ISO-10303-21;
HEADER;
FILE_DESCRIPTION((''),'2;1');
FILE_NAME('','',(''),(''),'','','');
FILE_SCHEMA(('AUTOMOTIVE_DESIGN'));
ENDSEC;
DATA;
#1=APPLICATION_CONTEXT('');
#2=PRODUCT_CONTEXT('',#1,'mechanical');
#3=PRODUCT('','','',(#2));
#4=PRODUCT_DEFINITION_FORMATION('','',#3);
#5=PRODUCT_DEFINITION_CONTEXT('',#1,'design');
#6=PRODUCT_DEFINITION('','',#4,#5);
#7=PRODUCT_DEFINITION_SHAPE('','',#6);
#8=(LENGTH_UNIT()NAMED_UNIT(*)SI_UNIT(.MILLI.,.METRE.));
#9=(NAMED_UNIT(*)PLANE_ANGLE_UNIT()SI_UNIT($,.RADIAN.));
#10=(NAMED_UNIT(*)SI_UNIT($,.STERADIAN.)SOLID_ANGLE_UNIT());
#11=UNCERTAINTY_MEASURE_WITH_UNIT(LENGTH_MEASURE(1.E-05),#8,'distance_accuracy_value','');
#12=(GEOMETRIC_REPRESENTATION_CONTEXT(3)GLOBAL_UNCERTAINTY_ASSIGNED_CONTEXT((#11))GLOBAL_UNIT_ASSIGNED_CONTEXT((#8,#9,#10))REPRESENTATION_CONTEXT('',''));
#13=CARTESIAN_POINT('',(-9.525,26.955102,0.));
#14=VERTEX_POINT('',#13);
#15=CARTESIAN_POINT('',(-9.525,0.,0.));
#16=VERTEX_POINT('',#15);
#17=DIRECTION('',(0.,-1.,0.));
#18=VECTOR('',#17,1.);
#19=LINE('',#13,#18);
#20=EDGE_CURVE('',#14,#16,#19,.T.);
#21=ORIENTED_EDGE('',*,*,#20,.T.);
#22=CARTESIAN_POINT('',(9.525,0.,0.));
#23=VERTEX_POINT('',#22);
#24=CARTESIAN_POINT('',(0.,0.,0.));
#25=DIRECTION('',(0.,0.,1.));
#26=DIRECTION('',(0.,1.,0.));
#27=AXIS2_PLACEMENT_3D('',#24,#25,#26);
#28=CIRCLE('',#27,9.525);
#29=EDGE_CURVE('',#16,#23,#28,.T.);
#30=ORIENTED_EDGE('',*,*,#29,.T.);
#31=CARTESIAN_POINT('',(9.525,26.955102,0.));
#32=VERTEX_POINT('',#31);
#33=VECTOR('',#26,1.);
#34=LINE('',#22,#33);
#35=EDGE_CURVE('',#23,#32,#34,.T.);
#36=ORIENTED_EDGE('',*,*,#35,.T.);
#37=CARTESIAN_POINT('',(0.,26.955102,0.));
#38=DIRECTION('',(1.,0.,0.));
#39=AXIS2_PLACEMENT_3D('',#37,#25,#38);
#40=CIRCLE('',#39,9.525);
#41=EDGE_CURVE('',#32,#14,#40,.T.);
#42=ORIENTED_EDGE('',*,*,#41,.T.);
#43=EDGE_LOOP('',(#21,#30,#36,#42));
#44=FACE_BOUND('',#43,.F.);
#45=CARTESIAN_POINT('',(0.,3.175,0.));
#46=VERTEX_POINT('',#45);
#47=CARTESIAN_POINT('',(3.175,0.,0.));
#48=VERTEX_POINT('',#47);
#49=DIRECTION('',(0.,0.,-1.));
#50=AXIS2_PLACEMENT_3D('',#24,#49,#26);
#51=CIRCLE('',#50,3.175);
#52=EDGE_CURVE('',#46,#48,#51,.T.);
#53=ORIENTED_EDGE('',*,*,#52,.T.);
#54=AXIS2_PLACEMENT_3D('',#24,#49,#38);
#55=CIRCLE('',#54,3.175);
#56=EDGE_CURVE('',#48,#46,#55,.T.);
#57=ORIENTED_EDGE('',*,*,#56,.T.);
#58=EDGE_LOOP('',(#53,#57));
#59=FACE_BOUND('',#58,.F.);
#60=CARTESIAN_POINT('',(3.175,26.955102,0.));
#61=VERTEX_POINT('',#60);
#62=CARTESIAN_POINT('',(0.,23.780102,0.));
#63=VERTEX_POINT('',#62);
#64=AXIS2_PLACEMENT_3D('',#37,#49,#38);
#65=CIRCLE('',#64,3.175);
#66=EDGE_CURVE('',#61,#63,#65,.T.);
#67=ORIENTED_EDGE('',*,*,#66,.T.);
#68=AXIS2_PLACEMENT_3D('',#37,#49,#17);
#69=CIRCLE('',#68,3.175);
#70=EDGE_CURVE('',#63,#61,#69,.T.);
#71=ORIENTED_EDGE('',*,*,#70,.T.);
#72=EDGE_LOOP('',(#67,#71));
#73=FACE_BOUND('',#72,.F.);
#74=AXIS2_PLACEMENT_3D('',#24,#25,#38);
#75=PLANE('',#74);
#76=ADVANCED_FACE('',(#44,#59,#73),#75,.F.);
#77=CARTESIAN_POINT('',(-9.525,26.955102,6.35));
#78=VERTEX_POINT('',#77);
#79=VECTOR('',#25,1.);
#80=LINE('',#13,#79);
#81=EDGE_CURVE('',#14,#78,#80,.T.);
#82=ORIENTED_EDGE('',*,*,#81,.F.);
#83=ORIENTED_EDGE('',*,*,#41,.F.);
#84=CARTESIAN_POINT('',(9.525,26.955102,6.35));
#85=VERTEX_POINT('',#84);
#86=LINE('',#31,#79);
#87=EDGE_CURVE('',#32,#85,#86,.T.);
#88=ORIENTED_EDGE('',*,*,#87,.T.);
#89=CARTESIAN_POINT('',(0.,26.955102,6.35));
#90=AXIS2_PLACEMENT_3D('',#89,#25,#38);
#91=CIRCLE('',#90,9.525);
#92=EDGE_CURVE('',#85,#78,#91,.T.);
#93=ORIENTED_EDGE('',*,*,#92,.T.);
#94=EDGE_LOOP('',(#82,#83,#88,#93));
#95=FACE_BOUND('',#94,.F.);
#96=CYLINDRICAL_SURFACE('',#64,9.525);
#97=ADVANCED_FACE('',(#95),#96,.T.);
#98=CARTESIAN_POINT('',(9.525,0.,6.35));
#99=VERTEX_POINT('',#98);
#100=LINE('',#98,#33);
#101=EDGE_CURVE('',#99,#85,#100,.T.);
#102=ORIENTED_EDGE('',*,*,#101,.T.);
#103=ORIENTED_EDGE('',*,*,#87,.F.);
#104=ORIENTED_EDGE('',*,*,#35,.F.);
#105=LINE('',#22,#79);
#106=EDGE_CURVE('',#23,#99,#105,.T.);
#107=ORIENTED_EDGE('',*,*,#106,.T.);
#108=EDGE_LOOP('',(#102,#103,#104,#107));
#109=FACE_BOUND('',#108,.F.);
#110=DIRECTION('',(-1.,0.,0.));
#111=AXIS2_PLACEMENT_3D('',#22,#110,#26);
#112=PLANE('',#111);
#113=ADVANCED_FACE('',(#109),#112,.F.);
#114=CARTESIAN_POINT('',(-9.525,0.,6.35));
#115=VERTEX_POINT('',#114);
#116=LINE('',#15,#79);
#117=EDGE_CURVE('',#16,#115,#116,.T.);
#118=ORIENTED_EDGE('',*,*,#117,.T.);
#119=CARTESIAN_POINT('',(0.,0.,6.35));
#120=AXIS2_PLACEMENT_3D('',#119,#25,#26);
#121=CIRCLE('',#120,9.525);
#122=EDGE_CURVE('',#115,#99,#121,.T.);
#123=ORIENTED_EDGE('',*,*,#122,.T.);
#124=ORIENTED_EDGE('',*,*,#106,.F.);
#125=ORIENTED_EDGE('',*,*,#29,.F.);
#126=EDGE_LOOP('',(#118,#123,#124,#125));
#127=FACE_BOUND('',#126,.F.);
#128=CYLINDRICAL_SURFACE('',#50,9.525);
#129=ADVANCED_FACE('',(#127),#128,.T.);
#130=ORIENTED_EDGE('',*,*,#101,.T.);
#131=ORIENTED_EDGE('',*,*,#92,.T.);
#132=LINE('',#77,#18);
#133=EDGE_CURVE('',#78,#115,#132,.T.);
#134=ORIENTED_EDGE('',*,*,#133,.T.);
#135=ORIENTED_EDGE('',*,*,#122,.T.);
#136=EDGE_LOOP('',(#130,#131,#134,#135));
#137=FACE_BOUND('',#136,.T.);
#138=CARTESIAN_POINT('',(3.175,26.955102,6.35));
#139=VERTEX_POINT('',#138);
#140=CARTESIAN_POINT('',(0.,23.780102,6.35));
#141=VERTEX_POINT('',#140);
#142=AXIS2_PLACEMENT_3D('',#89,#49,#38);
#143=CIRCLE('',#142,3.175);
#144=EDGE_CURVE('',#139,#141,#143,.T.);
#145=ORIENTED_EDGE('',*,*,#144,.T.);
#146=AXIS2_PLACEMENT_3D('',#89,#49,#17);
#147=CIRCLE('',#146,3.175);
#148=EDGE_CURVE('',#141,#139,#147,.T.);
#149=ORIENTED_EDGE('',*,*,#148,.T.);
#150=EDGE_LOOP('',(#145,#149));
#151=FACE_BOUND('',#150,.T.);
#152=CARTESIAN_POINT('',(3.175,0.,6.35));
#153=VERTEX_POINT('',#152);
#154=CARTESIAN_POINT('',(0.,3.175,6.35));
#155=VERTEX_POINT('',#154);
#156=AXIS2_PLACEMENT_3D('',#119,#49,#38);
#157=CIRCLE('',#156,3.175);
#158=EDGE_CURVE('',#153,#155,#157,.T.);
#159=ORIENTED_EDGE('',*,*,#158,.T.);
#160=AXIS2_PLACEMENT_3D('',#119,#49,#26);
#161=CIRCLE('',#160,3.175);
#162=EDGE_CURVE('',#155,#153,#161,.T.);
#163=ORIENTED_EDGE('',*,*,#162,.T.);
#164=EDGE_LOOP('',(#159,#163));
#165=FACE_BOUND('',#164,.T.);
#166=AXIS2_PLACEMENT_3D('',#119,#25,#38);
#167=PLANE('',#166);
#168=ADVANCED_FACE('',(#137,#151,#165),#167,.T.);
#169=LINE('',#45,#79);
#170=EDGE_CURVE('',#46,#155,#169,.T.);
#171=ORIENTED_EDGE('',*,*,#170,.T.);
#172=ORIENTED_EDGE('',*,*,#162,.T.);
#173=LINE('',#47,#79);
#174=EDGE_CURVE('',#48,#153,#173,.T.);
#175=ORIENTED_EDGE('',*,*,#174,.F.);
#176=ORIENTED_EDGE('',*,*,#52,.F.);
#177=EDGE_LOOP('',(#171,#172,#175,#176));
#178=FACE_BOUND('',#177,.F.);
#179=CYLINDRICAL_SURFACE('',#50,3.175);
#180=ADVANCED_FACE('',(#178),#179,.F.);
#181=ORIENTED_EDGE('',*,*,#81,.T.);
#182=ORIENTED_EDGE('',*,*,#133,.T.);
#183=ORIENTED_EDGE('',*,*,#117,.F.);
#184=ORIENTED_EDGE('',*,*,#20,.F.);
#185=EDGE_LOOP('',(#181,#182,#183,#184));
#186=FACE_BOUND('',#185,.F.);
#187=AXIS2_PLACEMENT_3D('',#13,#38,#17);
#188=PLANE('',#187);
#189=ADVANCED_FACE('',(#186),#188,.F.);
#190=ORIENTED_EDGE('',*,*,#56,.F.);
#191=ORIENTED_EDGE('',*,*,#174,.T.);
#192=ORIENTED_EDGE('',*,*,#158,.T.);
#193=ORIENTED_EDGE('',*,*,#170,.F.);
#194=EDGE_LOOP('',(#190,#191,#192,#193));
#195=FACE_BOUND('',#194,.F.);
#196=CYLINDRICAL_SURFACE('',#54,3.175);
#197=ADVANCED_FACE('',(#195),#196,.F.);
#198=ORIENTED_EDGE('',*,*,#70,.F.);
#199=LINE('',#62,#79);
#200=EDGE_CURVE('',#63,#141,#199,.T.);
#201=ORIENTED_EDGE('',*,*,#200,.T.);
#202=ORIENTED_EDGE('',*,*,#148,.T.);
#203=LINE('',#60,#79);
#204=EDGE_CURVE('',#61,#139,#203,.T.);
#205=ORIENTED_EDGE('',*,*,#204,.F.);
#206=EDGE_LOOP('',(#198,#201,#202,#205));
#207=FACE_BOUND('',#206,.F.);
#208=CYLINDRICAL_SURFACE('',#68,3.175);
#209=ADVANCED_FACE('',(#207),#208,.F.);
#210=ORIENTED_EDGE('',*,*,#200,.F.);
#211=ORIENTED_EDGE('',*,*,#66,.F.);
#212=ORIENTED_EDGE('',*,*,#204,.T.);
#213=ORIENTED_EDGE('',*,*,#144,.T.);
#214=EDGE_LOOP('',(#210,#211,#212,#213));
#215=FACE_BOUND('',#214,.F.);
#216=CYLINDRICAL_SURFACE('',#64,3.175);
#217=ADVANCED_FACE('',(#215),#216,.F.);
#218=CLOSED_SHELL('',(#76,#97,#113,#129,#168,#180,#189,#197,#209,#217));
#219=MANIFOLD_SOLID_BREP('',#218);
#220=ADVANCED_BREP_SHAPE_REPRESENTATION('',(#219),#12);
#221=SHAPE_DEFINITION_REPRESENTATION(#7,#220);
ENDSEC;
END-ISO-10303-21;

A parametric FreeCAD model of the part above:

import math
import FreeCAD as App
import Part
import Sketcher
Q = App.Units.Quantity

doc = App.newDocument("Part")
params = doc.addObject("Spreadsheet::Sheet", "Params")
for row, (alias, value) in enumerate([
    ("sketch1_radius", "0.375 in"),
    ("sketch1_radius2", "0.125 in"),
    ("pad1_length", "0.25 in"),
], start=1):
    params.set(f"A{row}", alias)
    params.set(f"B{row}", "=" + value)
    params.setAlias(f"B{row}", alias)

body = doc.addObject("PartDesign::Body", "Body")

# Sketch on XY plane
sketch1 = body.newObject("Sketcher::SketchObject", "Sketch")
sketch1.AttachmentSupport = (doc.getObject("XY_Plane"), [""])
sketch1.MapMode = "FlatFace"
sketch1.addGeometry([
    Part.LineSegment(App.Vector(9.5, 0, 0), App.Vector(9.5, 27, 0)),  # 0
    Part.ArcOfCircle(Part.Circle(App.Vector(0, 27, 0), App.Vector(0, 0, 1), 9.5), math.radians(0), math.radians(180)),  # 1
    Part.LineSegment(App.Vector(-9.5, 27, 0), App.Vector(-9.5, 0, 0)),  # 2
    Part.ArcOfCircle(Part.Circle(App.Vector(0, 0, 0), App.Vector(0, 0, 1), 9.5), math.radians(180), math.radians(360)),  # 3
    Part.ArcOfCircle(Part.Circle(App.Vector(0, 0, 0), App.Vector(0, 0, 1), 3.2), math.radians(0), math.radians(90)),  # 4
    Part.ArcOfCircle(Part.Circle(App.Vector(0, 0, 0), App.Vector(0, 0, 1), 3.2), math.radians(90), math.radians(360)),  # 5
    Part.ArcOfCircle(Part.Circle(App.Vector(0, 27, 0), App.Vector(0, 0, 1), 3.2), math.radians(0), math.radians(270)),  # 6
    Part.ArcOfCircle(Part.Circle(App.Vector(0, 27, 0), App.Vector(0, 0, 1), 3.2), math.radians(-90), math.radians(0)),  # 7
], False)
sketch1.addConstraint([
    Sketcher.Constraint("Tangent", 0, 2, 1, 1),
    Sketcher.Constraint("Tangent", 1, 2, 2, 1),
    Sketcher.Constraint("Tangent", 2, 2, 3, 1),
    Sketcher.Constraint("Tangent", 3, 2, 0, 1),
    Sketcher.Constraint("Tangent", 4, 1, 5, 2),
    Sketcher.Constraint("Coincident", 5, 1, 4, 2),
    Sketcher.Constraint("Tangent", 6, 1, 7, 2),
    Sketcher.Constraint("Coincident", 7, 1, 6, 2),
    Sketcher.Constraint("Vertical", 0),
    Sketcher.Constraint("Vertical", 2),
    Sketcher.Constraint("Coincident", 3, 3, -1, 1),
    Sketcher.Constraint("Coincident", 4, 3, -1, 1),
    Sketcher.Constraint("Coincident", 6, 3, 1, 3),
    Sketcher.Constraint("Equal", 5, 6),
    Sketcher.Constraint("PointOnObject", 4, 1, -1),
    Sketcher.Constraint("PointOnObject", 5, 1, -2),
    Sketcher.Constraint("PointOnObject", 7, 1, -2),
    Sketcher.Constraint("Horizontal", 1, 2, 6, 1),
    Sketcher.Constraint("Radius", 1, Q("0.375 in")),
    Sketcher.Constraint("Radius", 4, Q("0.125 in")),
    Sketcher.Constraint("DistanceY", 0, 1, 0, 2, Q("26.955102 mm")),
])
sketch1.setExpression("Constraints[18]", "Params.sketch1_radius")
sketch1.setExpression("Constraints[19]", "Params.sketch1_radius2")
pad1 = body.newObject("PartDesign::Pad", "Pad")
pad1.Profile = sketch1
pad1.setExpression("Length", "Params.pad1_length")

doc.recompute()
